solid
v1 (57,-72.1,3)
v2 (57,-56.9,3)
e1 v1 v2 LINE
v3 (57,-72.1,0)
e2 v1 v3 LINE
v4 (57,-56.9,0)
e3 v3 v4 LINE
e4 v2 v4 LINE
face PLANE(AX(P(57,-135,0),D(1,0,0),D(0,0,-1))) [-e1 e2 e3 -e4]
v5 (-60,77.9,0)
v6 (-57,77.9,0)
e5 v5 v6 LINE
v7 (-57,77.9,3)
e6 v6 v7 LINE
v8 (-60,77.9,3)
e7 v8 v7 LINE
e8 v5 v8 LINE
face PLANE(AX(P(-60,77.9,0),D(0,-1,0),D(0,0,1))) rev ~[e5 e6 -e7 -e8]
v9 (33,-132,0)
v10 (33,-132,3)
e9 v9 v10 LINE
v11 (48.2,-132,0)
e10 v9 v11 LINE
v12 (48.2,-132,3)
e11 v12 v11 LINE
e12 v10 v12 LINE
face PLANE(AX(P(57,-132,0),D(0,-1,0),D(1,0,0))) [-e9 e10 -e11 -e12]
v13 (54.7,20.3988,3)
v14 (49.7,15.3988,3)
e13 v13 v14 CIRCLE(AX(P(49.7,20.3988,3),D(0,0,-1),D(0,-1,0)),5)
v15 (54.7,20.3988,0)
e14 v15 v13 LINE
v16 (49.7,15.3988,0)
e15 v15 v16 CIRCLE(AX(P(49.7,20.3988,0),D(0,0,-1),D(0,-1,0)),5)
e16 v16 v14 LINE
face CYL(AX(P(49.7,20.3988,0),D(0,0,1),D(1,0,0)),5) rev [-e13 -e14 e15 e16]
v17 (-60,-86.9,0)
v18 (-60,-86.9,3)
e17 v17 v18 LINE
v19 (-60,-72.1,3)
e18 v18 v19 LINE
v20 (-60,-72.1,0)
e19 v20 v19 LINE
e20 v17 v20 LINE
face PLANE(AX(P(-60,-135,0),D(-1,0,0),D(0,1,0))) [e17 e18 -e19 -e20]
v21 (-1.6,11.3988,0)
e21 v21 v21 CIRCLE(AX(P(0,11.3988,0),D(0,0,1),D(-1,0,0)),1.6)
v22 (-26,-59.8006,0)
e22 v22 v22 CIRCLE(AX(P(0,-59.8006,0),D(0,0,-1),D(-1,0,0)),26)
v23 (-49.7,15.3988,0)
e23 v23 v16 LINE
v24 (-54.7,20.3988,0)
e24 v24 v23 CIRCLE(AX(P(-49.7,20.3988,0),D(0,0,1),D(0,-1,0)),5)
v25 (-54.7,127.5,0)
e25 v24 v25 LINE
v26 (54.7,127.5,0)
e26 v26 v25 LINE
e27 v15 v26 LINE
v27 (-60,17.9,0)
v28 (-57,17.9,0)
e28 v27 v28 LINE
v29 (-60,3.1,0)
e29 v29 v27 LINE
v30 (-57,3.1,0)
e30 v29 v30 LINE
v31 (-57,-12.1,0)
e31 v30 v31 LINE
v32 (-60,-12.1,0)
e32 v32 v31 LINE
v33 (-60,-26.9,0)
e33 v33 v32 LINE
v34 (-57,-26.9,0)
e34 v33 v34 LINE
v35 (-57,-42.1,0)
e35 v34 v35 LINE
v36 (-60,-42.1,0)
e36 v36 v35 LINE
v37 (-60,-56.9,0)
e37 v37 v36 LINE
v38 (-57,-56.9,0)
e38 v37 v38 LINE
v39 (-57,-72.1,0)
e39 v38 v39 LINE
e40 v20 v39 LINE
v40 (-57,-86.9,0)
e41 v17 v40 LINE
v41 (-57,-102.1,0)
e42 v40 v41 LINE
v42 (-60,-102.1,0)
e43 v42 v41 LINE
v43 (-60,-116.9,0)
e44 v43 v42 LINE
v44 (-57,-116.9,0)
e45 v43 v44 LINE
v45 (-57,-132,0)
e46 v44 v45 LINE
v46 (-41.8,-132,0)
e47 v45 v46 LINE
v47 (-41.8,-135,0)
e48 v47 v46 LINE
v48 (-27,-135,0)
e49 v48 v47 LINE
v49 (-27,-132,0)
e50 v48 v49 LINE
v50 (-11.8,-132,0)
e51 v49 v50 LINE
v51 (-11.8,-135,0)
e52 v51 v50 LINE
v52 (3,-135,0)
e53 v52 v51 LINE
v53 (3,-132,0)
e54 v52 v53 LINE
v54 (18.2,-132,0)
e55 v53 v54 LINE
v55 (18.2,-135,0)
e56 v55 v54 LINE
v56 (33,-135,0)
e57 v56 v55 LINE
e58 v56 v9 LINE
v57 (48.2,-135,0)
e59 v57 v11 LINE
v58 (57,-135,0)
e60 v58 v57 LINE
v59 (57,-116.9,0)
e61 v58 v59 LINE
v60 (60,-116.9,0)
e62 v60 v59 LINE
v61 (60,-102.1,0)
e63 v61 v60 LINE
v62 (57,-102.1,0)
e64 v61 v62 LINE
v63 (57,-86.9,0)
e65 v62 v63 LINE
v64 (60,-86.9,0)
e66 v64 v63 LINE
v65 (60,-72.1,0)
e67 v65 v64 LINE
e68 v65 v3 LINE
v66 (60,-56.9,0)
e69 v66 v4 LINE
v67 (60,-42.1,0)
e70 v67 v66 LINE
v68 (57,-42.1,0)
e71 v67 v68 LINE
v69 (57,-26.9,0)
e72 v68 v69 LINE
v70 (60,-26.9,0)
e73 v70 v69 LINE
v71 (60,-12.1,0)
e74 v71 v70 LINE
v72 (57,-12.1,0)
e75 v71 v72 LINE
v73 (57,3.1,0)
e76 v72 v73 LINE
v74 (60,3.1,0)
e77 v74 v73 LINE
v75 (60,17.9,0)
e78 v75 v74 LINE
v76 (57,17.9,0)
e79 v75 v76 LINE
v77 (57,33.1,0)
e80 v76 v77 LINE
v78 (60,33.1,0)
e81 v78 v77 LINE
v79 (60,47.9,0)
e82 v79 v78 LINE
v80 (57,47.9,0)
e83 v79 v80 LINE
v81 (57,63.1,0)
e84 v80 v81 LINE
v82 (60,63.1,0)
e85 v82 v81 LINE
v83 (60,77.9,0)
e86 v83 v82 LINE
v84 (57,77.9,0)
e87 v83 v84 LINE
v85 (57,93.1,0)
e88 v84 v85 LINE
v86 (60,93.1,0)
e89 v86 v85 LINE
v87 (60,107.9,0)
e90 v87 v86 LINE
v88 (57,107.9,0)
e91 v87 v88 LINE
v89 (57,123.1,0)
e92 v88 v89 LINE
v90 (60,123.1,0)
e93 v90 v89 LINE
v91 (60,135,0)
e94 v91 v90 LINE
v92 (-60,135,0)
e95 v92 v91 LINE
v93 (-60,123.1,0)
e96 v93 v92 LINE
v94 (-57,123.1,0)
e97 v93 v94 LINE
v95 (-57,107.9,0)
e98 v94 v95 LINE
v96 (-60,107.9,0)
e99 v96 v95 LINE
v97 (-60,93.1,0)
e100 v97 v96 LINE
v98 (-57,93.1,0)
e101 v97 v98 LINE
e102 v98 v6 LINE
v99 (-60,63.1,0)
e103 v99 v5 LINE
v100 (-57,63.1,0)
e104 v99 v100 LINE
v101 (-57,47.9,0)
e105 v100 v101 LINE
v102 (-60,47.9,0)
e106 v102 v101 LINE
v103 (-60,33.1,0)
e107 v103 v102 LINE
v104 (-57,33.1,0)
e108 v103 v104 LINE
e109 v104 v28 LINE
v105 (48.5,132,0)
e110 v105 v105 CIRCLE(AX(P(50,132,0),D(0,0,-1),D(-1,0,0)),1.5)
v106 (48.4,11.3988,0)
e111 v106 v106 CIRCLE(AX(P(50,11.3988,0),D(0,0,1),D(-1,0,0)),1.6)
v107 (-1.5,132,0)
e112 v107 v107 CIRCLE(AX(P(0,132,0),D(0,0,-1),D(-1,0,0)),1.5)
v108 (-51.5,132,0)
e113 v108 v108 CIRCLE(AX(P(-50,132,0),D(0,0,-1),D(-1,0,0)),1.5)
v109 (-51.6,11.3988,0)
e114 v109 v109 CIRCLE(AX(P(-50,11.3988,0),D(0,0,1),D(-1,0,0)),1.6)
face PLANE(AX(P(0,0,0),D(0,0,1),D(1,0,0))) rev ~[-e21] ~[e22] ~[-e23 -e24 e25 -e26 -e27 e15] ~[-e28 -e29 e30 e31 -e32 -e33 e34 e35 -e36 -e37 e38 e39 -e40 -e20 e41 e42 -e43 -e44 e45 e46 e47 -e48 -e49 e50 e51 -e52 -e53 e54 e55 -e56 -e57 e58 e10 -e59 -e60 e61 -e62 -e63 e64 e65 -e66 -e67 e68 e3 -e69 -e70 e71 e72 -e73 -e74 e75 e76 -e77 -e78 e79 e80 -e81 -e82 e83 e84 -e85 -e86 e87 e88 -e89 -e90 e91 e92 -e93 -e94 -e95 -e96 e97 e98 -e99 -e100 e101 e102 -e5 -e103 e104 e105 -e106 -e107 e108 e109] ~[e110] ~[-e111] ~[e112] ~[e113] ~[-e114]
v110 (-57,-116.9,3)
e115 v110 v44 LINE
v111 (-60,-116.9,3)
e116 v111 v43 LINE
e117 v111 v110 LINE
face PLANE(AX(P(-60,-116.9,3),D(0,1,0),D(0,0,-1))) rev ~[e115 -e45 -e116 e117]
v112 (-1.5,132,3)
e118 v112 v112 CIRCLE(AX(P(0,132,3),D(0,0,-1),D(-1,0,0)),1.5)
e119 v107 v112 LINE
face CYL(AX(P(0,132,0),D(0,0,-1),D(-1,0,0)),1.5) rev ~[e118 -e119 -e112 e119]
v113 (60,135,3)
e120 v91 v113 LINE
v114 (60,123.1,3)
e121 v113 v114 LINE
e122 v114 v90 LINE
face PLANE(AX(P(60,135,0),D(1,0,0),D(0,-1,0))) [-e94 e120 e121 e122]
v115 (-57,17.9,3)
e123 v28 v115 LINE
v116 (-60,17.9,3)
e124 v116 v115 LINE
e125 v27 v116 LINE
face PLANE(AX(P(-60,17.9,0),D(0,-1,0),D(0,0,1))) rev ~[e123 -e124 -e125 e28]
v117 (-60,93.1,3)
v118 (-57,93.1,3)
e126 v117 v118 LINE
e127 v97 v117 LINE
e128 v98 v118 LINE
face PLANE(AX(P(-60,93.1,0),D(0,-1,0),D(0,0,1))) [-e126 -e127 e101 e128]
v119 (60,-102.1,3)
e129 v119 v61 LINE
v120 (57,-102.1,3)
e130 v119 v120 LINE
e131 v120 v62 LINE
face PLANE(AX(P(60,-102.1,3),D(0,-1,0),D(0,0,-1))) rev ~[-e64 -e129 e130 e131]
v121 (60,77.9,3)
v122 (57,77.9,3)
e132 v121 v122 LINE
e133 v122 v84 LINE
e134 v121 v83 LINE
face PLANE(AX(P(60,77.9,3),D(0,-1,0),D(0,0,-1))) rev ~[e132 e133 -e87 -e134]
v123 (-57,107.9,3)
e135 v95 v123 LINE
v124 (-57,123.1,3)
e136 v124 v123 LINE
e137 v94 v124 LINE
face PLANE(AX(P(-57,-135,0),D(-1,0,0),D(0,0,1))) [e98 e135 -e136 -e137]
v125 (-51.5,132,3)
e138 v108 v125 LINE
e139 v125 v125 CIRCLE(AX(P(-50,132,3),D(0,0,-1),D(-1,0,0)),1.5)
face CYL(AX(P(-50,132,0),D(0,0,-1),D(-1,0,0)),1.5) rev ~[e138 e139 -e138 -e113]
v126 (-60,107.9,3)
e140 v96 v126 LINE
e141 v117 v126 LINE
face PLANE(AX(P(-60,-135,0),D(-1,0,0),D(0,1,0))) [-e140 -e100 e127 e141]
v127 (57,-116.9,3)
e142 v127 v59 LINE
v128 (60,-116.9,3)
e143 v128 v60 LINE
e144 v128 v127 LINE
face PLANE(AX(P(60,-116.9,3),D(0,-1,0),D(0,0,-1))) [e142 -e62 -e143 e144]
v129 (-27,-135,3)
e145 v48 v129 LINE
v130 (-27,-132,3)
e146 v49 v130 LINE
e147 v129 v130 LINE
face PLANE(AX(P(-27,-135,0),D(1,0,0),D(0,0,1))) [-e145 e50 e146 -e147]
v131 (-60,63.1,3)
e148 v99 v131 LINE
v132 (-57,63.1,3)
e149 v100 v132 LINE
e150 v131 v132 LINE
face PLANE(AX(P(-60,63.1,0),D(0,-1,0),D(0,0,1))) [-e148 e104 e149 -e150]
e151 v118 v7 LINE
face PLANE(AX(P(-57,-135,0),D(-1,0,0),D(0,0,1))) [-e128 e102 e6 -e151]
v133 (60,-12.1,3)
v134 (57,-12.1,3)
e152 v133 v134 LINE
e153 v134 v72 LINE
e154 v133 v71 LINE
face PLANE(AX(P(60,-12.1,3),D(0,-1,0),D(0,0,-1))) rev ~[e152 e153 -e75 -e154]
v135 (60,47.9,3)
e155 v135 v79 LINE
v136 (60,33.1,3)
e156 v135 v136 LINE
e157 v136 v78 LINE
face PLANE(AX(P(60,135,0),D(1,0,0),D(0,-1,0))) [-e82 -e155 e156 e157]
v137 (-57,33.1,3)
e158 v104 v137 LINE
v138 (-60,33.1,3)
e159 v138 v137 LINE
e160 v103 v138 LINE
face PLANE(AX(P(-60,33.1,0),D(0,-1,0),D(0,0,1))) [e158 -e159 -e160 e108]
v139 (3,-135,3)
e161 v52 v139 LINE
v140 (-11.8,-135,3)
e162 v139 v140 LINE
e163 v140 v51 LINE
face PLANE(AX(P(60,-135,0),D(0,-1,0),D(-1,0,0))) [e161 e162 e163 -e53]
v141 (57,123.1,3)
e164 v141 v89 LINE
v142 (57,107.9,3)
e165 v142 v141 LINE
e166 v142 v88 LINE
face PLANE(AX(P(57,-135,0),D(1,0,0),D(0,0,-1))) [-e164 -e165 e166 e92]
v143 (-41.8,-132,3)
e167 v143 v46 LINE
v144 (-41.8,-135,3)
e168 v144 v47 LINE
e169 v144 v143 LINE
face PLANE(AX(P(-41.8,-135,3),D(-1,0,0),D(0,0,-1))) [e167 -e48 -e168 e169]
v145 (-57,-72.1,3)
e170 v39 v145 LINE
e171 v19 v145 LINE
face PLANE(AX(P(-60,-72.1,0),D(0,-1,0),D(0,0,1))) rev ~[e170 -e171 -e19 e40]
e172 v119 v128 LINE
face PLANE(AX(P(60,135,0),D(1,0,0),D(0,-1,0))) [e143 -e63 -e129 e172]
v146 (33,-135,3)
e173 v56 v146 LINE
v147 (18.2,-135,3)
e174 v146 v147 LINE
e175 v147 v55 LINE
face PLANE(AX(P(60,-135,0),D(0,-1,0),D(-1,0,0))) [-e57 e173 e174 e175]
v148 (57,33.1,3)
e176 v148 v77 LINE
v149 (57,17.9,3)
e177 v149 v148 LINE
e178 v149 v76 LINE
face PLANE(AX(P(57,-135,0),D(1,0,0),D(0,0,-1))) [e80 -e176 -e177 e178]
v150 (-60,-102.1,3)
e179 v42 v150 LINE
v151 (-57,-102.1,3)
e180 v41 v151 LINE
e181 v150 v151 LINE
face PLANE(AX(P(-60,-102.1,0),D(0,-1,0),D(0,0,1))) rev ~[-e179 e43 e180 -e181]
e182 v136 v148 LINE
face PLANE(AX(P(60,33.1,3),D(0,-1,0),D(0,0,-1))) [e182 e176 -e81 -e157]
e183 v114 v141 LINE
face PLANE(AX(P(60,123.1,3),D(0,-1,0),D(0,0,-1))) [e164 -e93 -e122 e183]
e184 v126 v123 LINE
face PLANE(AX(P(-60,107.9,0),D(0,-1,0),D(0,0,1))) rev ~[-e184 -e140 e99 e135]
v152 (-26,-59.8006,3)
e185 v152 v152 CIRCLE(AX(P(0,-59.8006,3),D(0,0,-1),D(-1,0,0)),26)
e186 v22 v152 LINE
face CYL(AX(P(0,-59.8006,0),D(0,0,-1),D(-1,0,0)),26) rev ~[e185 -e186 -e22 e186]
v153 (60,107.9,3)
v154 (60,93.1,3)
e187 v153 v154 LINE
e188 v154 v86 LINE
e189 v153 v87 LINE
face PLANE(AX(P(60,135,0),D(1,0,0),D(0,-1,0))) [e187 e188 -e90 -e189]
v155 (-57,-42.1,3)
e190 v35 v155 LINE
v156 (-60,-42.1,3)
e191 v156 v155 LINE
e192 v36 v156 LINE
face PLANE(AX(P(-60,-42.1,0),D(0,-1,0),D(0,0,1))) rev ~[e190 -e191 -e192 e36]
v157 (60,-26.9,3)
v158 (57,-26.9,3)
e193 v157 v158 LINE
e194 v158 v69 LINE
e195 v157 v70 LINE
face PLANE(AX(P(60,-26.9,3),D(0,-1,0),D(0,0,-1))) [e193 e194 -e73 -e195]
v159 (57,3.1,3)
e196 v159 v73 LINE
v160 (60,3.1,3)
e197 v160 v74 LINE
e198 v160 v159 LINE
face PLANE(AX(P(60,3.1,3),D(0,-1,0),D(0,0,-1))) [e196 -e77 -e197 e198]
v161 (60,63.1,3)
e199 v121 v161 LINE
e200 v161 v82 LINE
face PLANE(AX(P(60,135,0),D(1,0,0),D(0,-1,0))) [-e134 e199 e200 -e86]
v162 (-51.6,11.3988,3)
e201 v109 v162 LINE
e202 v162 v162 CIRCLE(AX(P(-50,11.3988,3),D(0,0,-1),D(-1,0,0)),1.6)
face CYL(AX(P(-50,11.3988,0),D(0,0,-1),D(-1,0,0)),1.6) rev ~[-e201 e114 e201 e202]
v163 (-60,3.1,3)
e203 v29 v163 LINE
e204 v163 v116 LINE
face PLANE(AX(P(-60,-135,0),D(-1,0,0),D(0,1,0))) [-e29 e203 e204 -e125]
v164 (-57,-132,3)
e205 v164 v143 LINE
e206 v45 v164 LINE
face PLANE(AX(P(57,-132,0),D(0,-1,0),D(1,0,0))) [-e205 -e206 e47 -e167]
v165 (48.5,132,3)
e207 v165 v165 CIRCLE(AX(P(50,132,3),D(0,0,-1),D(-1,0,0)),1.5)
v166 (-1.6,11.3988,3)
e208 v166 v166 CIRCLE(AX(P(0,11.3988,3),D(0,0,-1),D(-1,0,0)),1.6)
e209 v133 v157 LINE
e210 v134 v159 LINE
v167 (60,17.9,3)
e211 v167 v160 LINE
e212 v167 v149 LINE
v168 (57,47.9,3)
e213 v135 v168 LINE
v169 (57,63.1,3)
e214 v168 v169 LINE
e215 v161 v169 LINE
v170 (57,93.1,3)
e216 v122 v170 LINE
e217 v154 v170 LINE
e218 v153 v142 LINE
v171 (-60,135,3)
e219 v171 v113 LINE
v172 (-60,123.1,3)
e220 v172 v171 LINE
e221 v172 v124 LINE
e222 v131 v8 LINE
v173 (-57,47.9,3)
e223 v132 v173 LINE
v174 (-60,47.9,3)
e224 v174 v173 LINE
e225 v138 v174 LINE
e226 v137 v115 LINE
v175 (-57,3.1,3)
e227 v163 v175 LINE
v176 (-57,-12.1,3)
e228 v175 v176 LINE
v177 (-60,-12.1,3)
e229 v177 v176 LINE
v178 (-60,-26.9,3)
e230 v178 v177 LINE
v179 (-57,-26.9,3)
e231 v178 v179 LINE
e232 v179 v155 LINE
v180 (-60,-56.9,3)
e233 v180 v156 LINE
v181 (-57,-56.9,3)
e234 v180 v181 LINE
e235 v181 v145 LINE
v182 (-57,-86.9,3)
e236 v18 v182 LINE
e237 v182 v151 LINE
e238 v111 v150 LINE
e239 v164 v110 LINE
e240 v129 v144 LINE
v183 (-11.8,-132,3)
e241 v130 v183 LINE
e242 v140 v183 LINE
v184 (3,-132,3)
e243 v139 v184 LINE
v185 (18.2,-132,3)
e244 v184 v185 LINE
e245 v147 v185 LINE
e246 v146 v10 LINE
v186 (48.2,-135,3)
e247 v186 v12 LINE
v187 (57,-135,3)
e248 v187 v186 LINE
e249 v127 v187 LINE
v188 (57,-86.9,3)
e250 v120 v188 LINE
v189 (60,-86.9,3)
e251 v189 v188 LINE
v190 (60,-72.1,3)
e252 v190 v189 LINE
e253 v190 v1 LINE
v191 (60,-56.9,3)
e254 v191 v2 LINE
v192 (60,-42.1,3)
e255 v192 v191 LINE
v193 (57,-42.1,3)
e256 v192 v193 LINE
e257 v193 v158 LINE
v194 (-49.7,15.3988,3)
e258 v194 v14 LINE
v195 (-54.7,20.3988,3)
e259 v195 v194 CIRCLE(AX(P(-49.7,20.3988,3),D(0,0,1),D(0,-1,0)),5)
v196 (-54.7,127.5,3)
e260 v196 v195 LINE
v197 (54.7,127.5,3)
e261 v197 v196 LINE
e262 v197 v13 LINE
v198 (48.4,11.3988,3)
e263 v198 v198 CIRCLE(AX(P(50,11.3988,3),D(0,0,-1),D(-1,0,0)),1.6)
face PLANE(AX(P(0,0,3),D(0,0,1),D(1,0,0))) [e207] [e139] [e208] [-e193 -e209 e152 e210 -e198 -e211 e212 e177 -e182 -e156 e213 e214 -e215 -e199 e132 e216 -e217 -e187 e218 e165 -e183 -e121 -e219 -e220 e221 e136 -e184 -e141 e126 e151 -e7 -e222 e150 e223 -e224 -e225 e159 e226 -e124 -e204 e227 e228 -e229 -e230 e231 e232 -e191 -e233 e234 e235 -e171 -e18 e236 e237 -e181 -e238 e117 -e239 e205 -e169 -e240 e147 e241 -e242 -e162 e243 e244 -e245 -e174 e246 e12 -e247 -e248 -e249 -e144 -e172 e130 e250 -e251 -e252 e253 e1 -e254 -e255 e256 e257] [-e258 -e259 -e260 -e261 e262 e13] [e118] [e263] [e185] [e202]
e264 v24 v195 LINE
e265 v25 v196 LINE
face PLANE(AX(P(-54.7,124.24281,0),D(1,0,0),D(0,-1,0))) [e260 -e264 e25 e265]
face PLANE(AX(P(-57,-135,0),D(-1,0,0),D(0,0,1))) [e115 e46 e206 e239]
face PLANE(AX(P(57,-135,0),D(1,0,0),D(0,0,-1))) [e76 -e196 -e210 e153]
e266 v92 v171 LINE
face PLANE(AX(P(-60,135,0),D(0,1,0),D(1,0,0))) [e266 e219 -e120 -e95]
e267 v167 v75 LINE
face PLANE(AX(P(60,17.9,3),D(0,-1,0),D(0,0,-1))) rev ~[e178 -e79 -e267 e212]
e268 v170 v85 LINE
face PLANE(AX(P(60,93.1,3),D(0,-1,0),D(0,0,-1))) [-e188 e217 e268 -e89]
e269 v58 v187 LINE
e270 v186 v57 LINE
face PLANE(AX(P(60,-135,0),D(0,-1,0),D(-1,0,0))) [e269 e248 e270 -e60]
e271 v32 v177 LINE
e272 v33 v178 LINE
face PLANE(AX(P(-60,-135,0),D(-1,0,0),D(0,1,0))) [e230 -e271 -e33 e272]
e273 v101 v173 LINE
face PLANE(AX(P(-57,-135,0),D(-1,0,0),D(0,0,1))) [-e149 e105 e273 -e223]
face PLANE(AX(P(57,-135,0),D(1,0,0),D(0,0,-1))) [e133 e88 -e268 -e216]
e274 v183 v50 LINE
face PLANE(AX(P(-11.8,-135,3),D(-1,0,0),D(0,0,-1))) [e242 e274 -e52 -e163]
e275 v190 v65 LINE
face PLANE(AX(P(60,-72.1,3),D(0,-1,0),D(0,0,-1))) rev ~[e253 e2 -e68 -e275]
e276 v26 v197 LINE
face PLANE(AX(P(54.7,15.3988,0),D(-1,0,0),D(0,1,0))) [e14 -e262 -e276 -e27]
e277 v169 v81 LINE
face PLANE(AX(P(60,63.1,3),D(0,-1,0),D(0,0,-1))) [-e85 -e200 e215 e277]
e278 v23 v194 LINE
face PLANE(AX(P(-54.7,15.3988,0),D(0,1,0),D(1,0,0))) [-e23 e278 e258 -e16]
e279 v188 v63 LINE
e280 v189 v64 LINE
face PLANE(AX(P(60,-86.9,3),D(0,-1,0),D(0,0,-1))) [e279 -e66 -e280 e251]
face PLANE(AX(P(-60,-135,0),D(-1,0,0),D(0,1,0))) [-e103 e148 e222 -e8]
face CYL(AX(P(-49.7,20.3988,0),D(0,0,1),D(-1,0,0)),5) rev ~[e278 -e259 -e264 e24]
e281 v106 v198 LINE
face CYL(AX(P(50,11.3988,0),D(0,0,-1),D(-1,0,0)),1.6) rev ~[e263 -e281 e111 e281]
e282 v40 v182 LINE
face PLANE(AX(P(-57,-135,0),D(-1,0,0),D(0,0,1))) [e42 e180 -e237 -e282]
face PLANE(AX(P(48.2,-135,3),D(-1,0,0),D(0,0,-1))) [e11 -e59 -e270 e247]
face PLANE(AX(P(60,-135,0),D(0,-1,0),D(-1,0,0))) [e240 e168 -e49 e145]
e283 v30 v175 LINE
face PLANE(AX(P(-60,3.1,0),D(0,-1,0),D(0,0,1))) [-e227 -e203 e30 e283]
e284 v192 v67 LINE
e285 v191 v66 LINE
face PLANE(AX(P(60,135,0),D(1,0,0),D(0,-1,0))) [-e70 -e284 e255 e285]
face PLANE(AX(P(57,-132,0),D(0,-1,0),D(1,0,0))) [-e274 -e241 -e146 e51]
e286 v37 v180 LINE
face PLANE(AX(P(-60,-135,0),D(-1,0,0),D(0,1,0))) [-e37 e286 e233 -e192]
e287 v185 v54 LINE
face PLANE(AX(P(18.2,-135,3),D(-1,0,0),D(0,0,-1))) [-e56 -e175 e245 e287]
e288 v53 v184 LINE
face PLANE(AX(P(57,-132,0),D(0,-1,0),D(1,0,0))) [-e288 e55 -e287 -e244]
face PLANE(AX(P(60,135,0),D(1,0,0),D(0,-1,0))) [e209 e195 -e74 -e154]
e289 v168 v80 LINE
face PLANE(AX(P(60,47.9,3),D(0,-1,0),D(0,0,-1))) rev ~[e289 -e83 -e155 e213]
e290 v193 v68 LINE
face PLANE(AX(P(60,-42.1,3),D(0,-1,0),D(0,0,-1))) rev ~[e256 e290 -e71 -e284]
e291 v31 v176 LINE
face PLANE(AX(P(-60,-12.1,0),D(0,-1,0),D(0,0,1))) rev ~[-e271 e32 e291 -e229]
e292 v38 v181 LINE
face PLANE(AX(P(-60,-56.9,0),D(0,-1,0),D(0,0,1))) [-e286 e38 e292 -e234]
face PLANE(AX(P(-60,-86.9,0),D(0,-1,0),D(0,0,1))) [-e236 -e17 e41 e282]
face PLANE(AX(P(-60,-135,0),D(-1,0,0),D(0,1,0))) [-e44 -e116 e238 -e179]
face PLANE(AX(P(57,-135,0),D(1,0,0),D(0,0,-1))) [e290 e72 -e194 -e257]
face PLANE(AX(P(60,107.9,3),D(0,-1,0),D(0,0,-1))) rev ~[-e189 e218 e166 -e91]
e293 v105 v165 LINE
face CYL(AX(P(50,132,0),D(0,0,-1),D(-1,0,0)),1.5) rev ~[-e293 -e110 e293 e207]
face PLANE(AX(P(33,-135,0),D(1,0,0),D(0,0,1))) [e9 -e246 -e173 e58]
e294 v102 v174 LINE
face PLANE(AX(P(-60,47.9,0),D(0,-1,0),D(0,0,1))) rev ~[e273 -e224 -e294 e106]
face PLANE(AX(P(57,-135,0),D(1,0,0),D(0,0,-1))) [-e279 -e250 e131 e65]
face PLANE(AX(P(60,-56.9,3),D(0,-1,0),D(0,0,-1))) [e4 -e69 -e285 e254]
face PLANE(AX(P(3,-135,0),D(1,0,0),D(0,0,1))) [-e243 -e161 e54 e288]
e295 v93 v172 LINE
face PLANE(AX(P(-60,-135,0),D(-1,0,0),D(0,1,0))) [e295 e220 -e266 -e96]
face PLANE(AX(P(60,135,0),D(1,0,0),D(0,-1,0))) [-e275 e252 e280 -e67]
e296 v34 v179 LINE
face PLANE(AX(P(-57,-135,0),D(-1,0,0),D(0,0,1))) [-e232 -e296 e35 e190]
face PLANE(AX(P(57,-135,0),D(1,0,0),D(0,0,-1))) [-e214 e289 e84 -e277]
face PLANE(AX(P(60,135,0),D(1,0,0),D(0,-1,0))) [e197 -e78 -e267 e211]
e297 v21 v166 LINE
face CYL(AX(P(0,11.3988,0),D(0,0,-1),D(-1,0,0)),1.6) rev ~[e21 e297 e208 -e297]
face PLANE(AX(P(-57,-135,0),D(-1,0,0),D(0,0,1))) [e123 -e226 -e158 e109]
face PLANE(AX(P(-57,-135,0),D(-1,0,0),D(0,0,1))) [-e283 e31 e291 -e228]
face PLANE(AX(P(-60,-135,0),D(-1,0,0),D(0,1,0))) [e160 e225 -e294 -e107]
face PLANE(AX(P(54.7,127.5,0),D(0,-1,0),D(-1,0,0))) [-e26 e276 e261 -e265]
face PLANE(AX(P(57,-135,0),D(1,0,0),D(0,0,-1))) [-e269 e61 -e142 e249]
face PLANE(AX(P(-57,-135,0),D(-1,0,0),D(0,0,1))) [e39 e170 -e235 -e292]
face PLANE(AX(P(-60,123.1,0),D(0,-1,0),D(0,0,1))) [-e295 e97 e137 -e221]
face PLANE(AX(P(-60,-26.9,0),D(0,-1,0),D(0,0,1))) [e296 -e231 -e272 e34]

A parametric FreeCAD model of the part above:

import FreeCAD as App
import Part
import Sketcher
from FreeCAD import Vector
Q = App.Units.Quantity


def edges_at(feature, points):
    """Names of the edges that pass closest to the given points."""
    edges = feature.Shape.Edges
    near = lambda p: min(range(len(edges)), key=lambda i: edges[i].distToShape(Part.Vertex(*p))[0])
    return sorted({f"Edge{near(p) + 1}" for p in points})


def add_polygon(sketch, points):
    """Adds a closed chain of lines whose ends are joined by coincident constraints."""
    first, n = sketch.GeometryCount, len(points)
    for a, b in zip(points, points[1:] + points[:1]):
        sketch.addGeometry(Part.LineSegment(App.Vector(*a, 0), App.Vector(*b, 0)), False)
    for i in range(n):
        sketch.addConstraint(Sketcher.Constraint("Coincident", first + i, 2, first + (i + 1) % n, 1))

doc = App.newDocument("Part")
body = doc.addObject("PartDesign::Body", "Body")

sketch1 = doc.addObject("Sketcher::SketchObject", "Sketch")
body.addObject(sketch1)
sketch1.AttachmentSupport = (doc.XY_Plane, [""])
sketch1.MapMode = "FlatFace"
add_polygon(sketch1, [(-60, -135), (60, -135), (60, 135), (-60, 135)])
sketch1.addConstraint([
    Sketcher.Constraint("Horizontal", 0),
    Sketcher.Constraint("Vertical", 1),
    Sketcher.Constraint("Horizontal", 2),
    Sketcher.Constraint("Vertical", 3),
    Sketcher.Constraint("Symmetric", 0, 2, 2, 2, -1, 1),
    Sketcher.Constraint("DistanceX", 0, 1, 0, 2, Q("120 mm")),
    Sketcher.Constraint("DistanceY", 1, 1, 1, 2, Q("270 mm")),
])
pad1 = doc.addObject("PartDesign::Pad", "Pad")
body.addObject(pad1)
pad1.Profile = sketch1
pad1.Length = 3

sketch2 = doc.addObject("Sketcher::SketchObject", "Sketch001")
body.addObject(sketch2)
sketch2.AttachmentSupport = (doc.YZ_Plane, [""])
sketch2.MapMode = "FlatFace"
sketch2.AttachmentOffset = App.Placement(Vector(0, 0, 60), App.Rotation())
add_polygon(sketch2, [(-135, 3), (-135, 0), (-116.9, 0), (-116.9, 3)])
add_polygon(sketch2, [(-102.1, 3), (-102.1, 0), (-86.9, 0), (-86.9, 3)])
add_polygon(sketch2, [(-72.1, 3), (-72.1, 0), (-56.9, 0), (-56.9, 3)])
add_polygon(sketch2, [(-42.1, 3), (-42.1, 0), (-26.9, 0), (-26.9, 3)])
add_polygon(sketch2, [(-12.1, 3), (-12.1, 0), (3.1, 0), (3.1, 3)])
add_polygon(sketch2, [(17.9, 3), (17.9, 0), (33.1, 0), (33.1, 3)])
add_polygon(sketch2, [(47.9, 3), (47.9, 0), (63.1, 0), (63.1, 3)])
add_polygon(sketch2, [(77.9, 3), (77.9, 0), (93.1, 0), (93.1, 3)])
add_polygon(sketch2, [(107.9, 3), (107.9, 0), (123.1, 0), (123.1, 3)])
sketch2.addConstraint([
    Sketcher.Constraint("Vertical", 0),
    Sketcher.Constraint("Horizontal", 1),
    Sketcher.Constraint("Vertical", 2),
    Sketcher.Constraint("Horizontal", 3),
    Sketcher.Constraint("Vertical", 4),
    Sketcher.Constraint("Horizontal", 5),
    Sketcher.Constraint("Vertical", 6),
    Sketcher.Constraint("Horizontal", 7),
    Sketcher.Constraint("Vertical", 8),
    Sketcher.Constraint("Horizontal", 9),
    Sketcher.Constraint("Vertical", 10),
    Sketcher.Constraint("Horizontal", 11),
    Sketcher.Constraint("Vertical", 12),
    Sketcher.Constraint("Horizontal", 13),
    Sketcher.Constraint("Vertical", 14),
    Sketcher.Constraint("Horizontal", 15),
    Sketcher.Constraint("Vertical", 16),
    Sketcher.Constraint("Horizontal", 17),
    Sketcher.Constraint("Vertical", 18),
    Sketcher.Constraint("Horizontal", 19),
    Sketcher.Constraint("Vertical", 20),
    Sketcher.Constraint("Horizontal", 21),
    Sketcher.Constraint("Vertical", 22),
    Sketcher.Constraint("Horizontal", 23),
    Sketcher.Constraint("Vertical", 24),
    Sketcher.Constraint("Horizontal", 25),
    Sketcher.Constraint("Vertical", 26),
    Sketcher.Constraint("Horizontal", 27),
    Sketcher.Constraint("Vertical", 28),
    Sketcher.Constraint("Horizontal", 29),
    Sketcher.Constraint("Vertical", 30),
    Sketcher.Constraint("Horizontal", 31),
    Sketcher.Constraint("Vertical", 32),
    Sketcher.Constraint("Horizontal", 33),
    Sketcher.Constraint("Vertical", 34),
    Sketcher.Constraint("Horizontal", 35),
    Sketcher.Constraint("PointOnObject", 0, 2, -1),
    Sketcher.Constraint("PointOnObject", 4, 2, -1),
    Sketcher.Constraint("PointOnObject", 8, 2, -1),
    Sketcher.Constraint("PointOnObject", 12, 2, -1),
    Sketcher.Constraint("PointOnObject", 16, 2, -1),
    Sketcher.Constraint("PointOnObject", 20, 2, -1),
    Sketcher.Constraint("PointOnObject", 24, 2, -1),
    Sketcher.Constraint("PointOnObject", 28, 2, -1),
    Sketcher.Constraint("PointOnObject", 32, 2, -1),
    Sketcher.Constraint("Horizontal", 3, 2, 6, 2),
    Sketcher.Constraint("Horizontal", 7, 2, 10, 2),
    Sketcher.Constraint("Horizontal", 11, 2, 14, 2),
    Sketcher.Constraint("Horizontal", 15, 2, 18, 2),
    Sketcher.Constraint("Horizontal", 19, 2, 22, 2),
    Sketcher.Constraint("Horizontal", 23, 2, 26, 2),
    Sketcher.Constraint("Horizontal", 27, 2, 30, 2),
    Sketcher.Constraint("Horizontal", 31, 2, 34, 2),
    Sketcher.Constraint("Equal", 7, 9),
    Sketcher.Constraint("Equal", 11, 13),
    Sketcher.Constraint("Equal", 15, 17),
    Sketcher.Constraint("Equal", 19, 21),
    Sketcher.Constraint("Equal", 23, 25),
    Sketcher.Constraint("Equal", 27, 29),
    Sketcher.Constraint("Equal", 31, 33),
    Sketcher.Constraint("DistanceY", 0, 2, 0, 1, Q("3 mm")),
    Sketcher.Constraint("DistanceX", 1, 1, 1, 2, Q("18.1 mm")),
    Sketcher.Constraint("DistanceX", 1, 2, 5, 2, Q("30 mm")),
    Sketcher.Constraint("DistanceX", 4, 2, 8, 2, Q("30 mm")),
    Sketcher.Constraint("DistanceX", 8, 2, 12, 2, Q("30 mm")),
    Sketcher.Constraint("DistanceX", 12, 2, 16, 2, Q("30 mm")),
    Sketcher.Constraint("DistanceX", 16, 2, 20, 2, Q("30 mm")),
    Sketcher.Constraint("DistanceX", 20, 2, 24, 2, Q("30 mm")),
    Sketcher.Constraint("DistanceX", 24, 2, 28, 2, Q("30 mm")),
    Sketcher.Constraint("DistanceX", 28, 2, 32, 2, Q("30 mm")),
    Sketcher.Constraint("DistanceX", 5, 1, 5, 2, Q("15.2 mm")),
    Sketcher.Constraint("DistanceX", 0, 2, -1, 1, Q("135 mm")),
])
pocket1 = doc.addObject("PartDesign::Pocket", "Pocket")
body.addObject(pocket1)
pocket1.Profile = sketch2
pocket1.Length = 3

sketch3 = doc.addObject("Sketcher::SketchObject", "Sketch002")
body.addObject(sketch3)
sketch3.AttachmentSupport = (doc.XZ_Plane, [""])
sketch3.MapMode = "FlatFace"
sketch3.AttachmentOffset = App.Placement(Vector(0, 0, 135), App.Rotation())
add_polygon(sketch3, [(-57, 3), (-57, 0), (-41.8, 0), (-41.8, 3)])
add_polygon(sketch3, [(33, 3), (33, 0), (48.2, 0), (48.2, 3)])
add_polygon(sketch3, [(3, 3), (3, 0), (18.2, 0), (18.2, 3)])
add_polygon(sketch3, [(-27, 3), (-27, 0), (-11.8, 0), (-11.8, 3)])
sketch3.addConstraint([
    Sketcher.Constraint("Vertical", 0),
    Sketcher.Constraint("Horizontal", 1),
    Sketcher.Constraint("Vertical", 2),
    Sketcher.Constraint("Horizontal", 3),
    Sketcher.Constraint("Vertical", 4),
    Sketcher.Constraint("Horizontal", 5),
    Sketcher.Constraint("Vertical", 6),
    Sketcher.Constraint("Horizontal", 7),
    Sketcher.Constraint("Vertical", 8),
    Sketcher.Constraint("Horizontal", 9),
    Sketcher.Constraint("Vertical", 10),
    Sketcher.Constraint("Horizontal", 11),
    Sketcher.Constraint("Vertical", 12),
    Sketcher.Constraint("Horizontal", 13),
    Sketcher.Constraint("Vertical", 14),
    Sketcher.Constraint("Horizontal", 15),
    Sketcher.Constraint("PointOnObject", 0, 2, -1),
    Sketcher.Constraint("PointOnObject", 4, 2, -1),
    Sketcher.Constraint("PointOnObject", 8, 2, -1),
    Sketcher.Constraint("PointOnObject", 12, 2, -1),
    Sketcher.Constraint("Horizontal", 3, 2, 6, 2),
    Sketcher.Constraint("Horizontal", 7, 2, 10, 2),
    Sketcher.Constraint("Horizontal", 11, 2, 14, 2),
    Sketcher.Constraint("Equal", 3, 5),
    Sketcher.Constraint("Equal", 7, 9),
    Sketcher.Constraint("Equal", 11, 13),
    Sketcher.Constraint("DistanceY", 0, 2, 0, 1, Q("3 mm")),
    Sketcher.Constraint("DistanceX", 1, 1, 1, 2, Q("15.2 mm")),
    Sketcher.Constraint("DistanceX", -1, 1, 8, 2, Q("3 mm")),
    Sketcher.Constraint("DistanceX", 8, 2, 4, 2, Q("30 mm")),
    Sketcher.Constraint("DistanceX", 0, 2, 12, 2, Q("30 mm")),
    Sketcher.Constraint("DistanceX", 12, 2, 8, 2, Q("30 mm")),
])
pocket2 = doc.addObject("PartDesign::Pocket", "Pocket001")
body.addObject(pocket2)
pocket2.Profile = sketch3
pocket2.Length = 3

sketch4 = doc.addObject("Sketcher::SketchObject", "Sketch003")
body.addObject(sketch4)
sketch4.AttachmentSupport = (doc.YZ_Plane, [""])
sketch4.MapMode = "FlatFace"
sketch4.AttachmentOffset = App.Placement(Vector(0, 0, -60), App.Rotation())
add_polygon(sketch4, [(-135, 3), (-116.9, 3), (-116.9, 0), (-135, 0)])
add_polygon(sketch4, [(-102.1, 0), (-102.1, 3), (-86.9, 3), (-86.9, 0)])
add_polygon(sketch4, [(-72.1, 0), (-72.1, 3), (-56.9, 3), (-56.9, 0)])
add_polygon(sketch4, [(-42.1, 0), (-42.1, 3), (-26.9, 3), (-26.9, 0)])
add_polygon(sketch4, [(-12.1, 0), (-12.1, 3), (3.1, 3), (3.1, 0)])
add_polygon(sketch4, [(17.9, 0), (17.9, 3), (33.1, 3), (33.1, 0)])
add_polygon(sketch4, [(47.9, 0), (47.9, 3), (63.1, 3), (63.1, 0)])
add_polygon(sketch4, [(77.9, 0), (77.9, 3), (93.1, 3), (93.1, 0)])
add_polygon(sketch4, [(107.9, 0), (107.9, 3), (123.1, 3), (123.1, 0)])
sketch4.addConstraint([
    Sketcher.Constraint("Horizontal", 0),
    Sketcher.Constraint("Vertical", 1),
    Sketcher.Constraint("Horizontal", 2),
    Sketcher.Constraint("Vertical", 3),
    Sketcher.Constraint("Vertical", 4),
    Sketcher.Constraint("Horizontal", 5),
    Sketcher.Constraint("Vertical", 6),
    Sketcher.Constraint("Horizontal", 7),
    Sketcher.Constraint("Vertical", 8),
    Sketcher.Constraint("Horizontal", 9),
    Sketcher.Constraint("Vertical", 10),
    Sketcher.Constraint("Horizontal", 11),
    Sketcher.Constraint("Vertical", 12),
    Sketcher.Constraint("Horizontal", 13),
    Sketcher.Constraint("Vertical", 14),
    Sketcher.Constraint("Horizontal", 15),
    Sketcher.Constraint("Vertical", 16),
    Sketcher.Constraint("Horizontal", 17),
    Sketcher.Constraint("Vertical", 18),
    Sketcher.Constraint("Horizontal", 19),
    Sketcher.Constraint("Vertical", 20),
    Sketcher.Constraint("Horizontal", 21),
    Sketcher.Constraint("Vertical", 22),
    Sketcher.Constraint("Horizontal", 23),
    Sketcher.Constraint("Vertical", 24),
    Sketcher.Constraint("Horizontal", 25),
    Sketcher.Constraint("Vertical", 26),
    Sketcher.Constraint("Horizontal", 27),
    Sketcher.Constraint("Vertical", 28),
    Sketcher.Constraint("Horizontal", 29),
    Sketcher.Constraint("Vertical", 30),
    Sketcher.Constraint("Horizontal", 31),
    Sketcher.Constraint("Vertical", 32),
    Sketcher.Constraint("Horizontal", 33),
    Sketcher.Constraint("Vertical", 34),
    Sketcher.Constraint("Horizontal", 35),
    Sketcher.Constraint("PointOnObject", 1, 2, -1),
    Sketcher.Constraint("PointOnObject", 6, 2, -1),
    Sketcher.Constraint("PointOnObject", 10, 2, -1),
    Sketcher.Constraint("PointOnObject", 14, 2, -1),
    Sketcher.Constraint("PointOnObject", 18, 2, -1),
    Sketcher.Constraint("PointOnObject", 22, 2, -1),
    Sketcher.Constraint("PointOnObject", 26, 2, -1),
    Sketcher.Constraint("PointOnObject", 30, 2, -1),
    Sketcher.Constraint("PointOnObject", 34, 2, -1),
    Sketcher.Constraint("Horizontal", 3, 2, 4, 2),
    Sketcher.Constraint("Horizontal", 5, 2, 8, 2),
    Sketcher.Constraint("Horizontal", 9, 2, 12, 2),
    Sketcher.Constraint("Horizontal", 13, 2, 16, 2),
    Sketcher.Constraint("Horizontal", 17, 2, 20, 2),
    Sketcher.Constraint("Horizontal", 21, 2, 24, 2),
    Sketcher.Constraint("Horizontal", 25, 2, 28, 2),
    Sketcher.Constraint("Horizontal", 29, 2, 32, 2),
    Sketcher.Constraint("Equal", 7, 9),
    Sketcher.Constraint("Equal", 11, 13),
    Sketcher.Constraint("Equal", 15, 17),
    Sketcher.Constraint("Equal", 19, 21),
    Sketcher.Constraint("Equal", 23, 25),
    Sketcher.Constraint("Equal", 27, 29),
    Sketcher.Constraint("Equal", 31, 33),
    Sketcher.Constraint("DistanceX", 0, 2, 5, 2, Q("30 mm")),
    Sketcher.Constraint("DistanceX", 4, 2, 8, 2, Q("30 mm")),
    Sketcher.Constraint("DistanceX", 8, 2, 12, 2, Q("30 mm")),
    Sketcher.Constraint("DistanceX", 12, 2, 16, 2, Q("30 mm")),
    Sketcher.Constraint("DistanceX", 16, 2, 20, 2, Q("30 mm")),
    Sketcher.Constraint("DistanceX", 20, 2, 24, 2, Q("30 mm")),
    Sketcher.Constraint("DistanceX", 24, 2, 28, 2, Q("30 mm")),
    Sketcher.Constraint("DistanceX", 28, 2, 32, 2, Q("30 mm")),
    Sketcher.Constraint("DistanceY", 1, 2, 1, 1, Q("3 mm")),
    Sketcher.Constraint("DistanceX", 0, 1, 0, 2, Q("18.1 mm")),
    Sketcher.Constraint("DistanceX", 5, 1, 5, 2, Q("15.2 mm")),
    Sketcher.Constraint("DistanceX", 2, 2, -1, 1, Q("135 mm")),
])
pocket3 = doc.addObject("PartDesign::Pocket", "Pocket002")
body.addObject(pocket3)
pocket3.Profile = sketch4
pocket3.Length = 3
pocket3.Reversed = True

sketch5 = doc.addObject("Sketcher::SketchObject", "Sketch004")
body.addObject(sketch5)
sketch5.AttachmentSupport = (doc.XY_Plane, [""])
sketch5.MapMode = "FlatFace"
sketch5.addGeometry(Part.Circle(Vector(50, 11.4, 0), Vector(0, 0, 1), 1.6), False)
add_polygon(sketch5, [(54.7, 15.4), (-54.7, 15.4), (-54.7, 127.5), (54.7, 127.5)])
sketch5.addGeometry(Part.Circle(Vector(0, 11.4, 0), Vector(0, 0, 1), 1.6), False)
sketch5.addGeometry(Part.Circle(Vector(-50, 11.4, 0), Vector(0, 0, 1), 1.6), False)
sketch5.addGeometry(Part.Circle(Vector(50, 132, 0), Vector(0, 0, 1), 1.5), False)
sketch5.addGeometry(Part.Circle(Vector(0, 132, 0), Vector(0, 0, 1), 1.5), False)
sketch5.addGeometry(Part.Circle(Vector(-50, 132, 0), Vector(0, 0, 1), 1.5), False)
sketch5.addConstraint([
    Sketcher.Constraint("Horizontal", 1),
    Sketcher.Constraint("Vertical", 2),
    Sketcher.Constraint("Horizontal", 3),
    Sketcher.Constraint("Vertical", 4),
    Sketcher.Constraint("Equal", 0, 5),
    Sketcher.Constraint("Equal", 5, 6),
    Sketcher.Constraint("Equal", 7, 8),
    Sketcher.Constraint("Equal", 8, 9),
    Sketcher.Constraint("Symmetric", 0, 3, 6, 3, -2),
    Sketcher.Constraint("Symmetric", 7, 3, 9, 3, -2),
    Sketcher.Constraint("PointOnObject", 5, 3, -2),
    Sketcher.Constraint("PointOnObject", 8, 3, -2),
    Sketcher.Constraint("Horizontal", 0, 3, 5, 3),
    Sketcher.Constraint("Horizontal", 7, 3, 8, 3),
    Sketcher.Constraint("Vertical", 0, 3, 7, 3),
    Sketcher.Constraint("Diameter", 0, Q("3.2 mm")),
    Sketcher.Constraint("Diameter", 7, Q("3 mm")),
    Sketcher.Constraint("DistanceX", 1, 2, 1, 1, Q("109.4 mm")),
    Sketcher.Constraint("DistanceX", -1, 1, 0, 3, Q("50 mm")),
    Sketcher.Constraint("DistanceY", -1, 1, 7, 3, Q("132 mm")),
    Sketcher.Constraint("DistanceY", 6, 3, 1, 2, Q("4 mm")),
    Sketcher.Constraint("DistanceX", 1, 2, -1, 1, Q("54.7 mm")),
    Sketcher.Constraint("DistanceY", -1, 1, 2, 2, Q("127.5 mm")),
    Sketcher.Constraint("DistanceY", 2, 1, 2, 2, Q("112.1012 mm")),
])
pocket4 = doc.addObject("PartDesign::Pocket", "Pocket003")
body.addObject(pocket4)
pocket4.Profile = sketch5
pocket4.Length = 3
pocket4.Reversed = True
doc.recompute()

fillet = doc.addObject("PartDesign::Fillet", "Fillet")
body.addObject(fillet)
fillet.Base = (pocket4, edges_at(pocket4, [(54.7, 15.399, 1.5), (-54.7, 15.399, 1.5)]))
fillet.Radius = 5

sketch6 = doc.addObject("Sketcher::SketchObject", "Sketch005")
body.addObject(sketch6)
sketch6.AttachmentSupport = (doc.XY_Plane, [""])
sketch6.MapMode = "FlatFace"
sketch6.addGeometry(Part.Circle(Vector(0, -60, 0), Vector(0, 0, 1), 26), False)
sketch6.addConstraint([
    Sketcher.Constraint("PointOnObject", 0, 3, -2),
    Sketcher.Constraint("Diameter", 0, Q("52 mm")),
    Sketcher.Constraint("DistanceY", 0, 3, -1, 1, Q("59.8006 mm")),
])
pocket5 = doc.addObject("PartDesign::Pocket", "Pocket004")
body.addObject(pocket5)
pocket5.Profile = sketch6
pocket5.Length = 3
pocket5.Reversed = True

doc.recompute()
